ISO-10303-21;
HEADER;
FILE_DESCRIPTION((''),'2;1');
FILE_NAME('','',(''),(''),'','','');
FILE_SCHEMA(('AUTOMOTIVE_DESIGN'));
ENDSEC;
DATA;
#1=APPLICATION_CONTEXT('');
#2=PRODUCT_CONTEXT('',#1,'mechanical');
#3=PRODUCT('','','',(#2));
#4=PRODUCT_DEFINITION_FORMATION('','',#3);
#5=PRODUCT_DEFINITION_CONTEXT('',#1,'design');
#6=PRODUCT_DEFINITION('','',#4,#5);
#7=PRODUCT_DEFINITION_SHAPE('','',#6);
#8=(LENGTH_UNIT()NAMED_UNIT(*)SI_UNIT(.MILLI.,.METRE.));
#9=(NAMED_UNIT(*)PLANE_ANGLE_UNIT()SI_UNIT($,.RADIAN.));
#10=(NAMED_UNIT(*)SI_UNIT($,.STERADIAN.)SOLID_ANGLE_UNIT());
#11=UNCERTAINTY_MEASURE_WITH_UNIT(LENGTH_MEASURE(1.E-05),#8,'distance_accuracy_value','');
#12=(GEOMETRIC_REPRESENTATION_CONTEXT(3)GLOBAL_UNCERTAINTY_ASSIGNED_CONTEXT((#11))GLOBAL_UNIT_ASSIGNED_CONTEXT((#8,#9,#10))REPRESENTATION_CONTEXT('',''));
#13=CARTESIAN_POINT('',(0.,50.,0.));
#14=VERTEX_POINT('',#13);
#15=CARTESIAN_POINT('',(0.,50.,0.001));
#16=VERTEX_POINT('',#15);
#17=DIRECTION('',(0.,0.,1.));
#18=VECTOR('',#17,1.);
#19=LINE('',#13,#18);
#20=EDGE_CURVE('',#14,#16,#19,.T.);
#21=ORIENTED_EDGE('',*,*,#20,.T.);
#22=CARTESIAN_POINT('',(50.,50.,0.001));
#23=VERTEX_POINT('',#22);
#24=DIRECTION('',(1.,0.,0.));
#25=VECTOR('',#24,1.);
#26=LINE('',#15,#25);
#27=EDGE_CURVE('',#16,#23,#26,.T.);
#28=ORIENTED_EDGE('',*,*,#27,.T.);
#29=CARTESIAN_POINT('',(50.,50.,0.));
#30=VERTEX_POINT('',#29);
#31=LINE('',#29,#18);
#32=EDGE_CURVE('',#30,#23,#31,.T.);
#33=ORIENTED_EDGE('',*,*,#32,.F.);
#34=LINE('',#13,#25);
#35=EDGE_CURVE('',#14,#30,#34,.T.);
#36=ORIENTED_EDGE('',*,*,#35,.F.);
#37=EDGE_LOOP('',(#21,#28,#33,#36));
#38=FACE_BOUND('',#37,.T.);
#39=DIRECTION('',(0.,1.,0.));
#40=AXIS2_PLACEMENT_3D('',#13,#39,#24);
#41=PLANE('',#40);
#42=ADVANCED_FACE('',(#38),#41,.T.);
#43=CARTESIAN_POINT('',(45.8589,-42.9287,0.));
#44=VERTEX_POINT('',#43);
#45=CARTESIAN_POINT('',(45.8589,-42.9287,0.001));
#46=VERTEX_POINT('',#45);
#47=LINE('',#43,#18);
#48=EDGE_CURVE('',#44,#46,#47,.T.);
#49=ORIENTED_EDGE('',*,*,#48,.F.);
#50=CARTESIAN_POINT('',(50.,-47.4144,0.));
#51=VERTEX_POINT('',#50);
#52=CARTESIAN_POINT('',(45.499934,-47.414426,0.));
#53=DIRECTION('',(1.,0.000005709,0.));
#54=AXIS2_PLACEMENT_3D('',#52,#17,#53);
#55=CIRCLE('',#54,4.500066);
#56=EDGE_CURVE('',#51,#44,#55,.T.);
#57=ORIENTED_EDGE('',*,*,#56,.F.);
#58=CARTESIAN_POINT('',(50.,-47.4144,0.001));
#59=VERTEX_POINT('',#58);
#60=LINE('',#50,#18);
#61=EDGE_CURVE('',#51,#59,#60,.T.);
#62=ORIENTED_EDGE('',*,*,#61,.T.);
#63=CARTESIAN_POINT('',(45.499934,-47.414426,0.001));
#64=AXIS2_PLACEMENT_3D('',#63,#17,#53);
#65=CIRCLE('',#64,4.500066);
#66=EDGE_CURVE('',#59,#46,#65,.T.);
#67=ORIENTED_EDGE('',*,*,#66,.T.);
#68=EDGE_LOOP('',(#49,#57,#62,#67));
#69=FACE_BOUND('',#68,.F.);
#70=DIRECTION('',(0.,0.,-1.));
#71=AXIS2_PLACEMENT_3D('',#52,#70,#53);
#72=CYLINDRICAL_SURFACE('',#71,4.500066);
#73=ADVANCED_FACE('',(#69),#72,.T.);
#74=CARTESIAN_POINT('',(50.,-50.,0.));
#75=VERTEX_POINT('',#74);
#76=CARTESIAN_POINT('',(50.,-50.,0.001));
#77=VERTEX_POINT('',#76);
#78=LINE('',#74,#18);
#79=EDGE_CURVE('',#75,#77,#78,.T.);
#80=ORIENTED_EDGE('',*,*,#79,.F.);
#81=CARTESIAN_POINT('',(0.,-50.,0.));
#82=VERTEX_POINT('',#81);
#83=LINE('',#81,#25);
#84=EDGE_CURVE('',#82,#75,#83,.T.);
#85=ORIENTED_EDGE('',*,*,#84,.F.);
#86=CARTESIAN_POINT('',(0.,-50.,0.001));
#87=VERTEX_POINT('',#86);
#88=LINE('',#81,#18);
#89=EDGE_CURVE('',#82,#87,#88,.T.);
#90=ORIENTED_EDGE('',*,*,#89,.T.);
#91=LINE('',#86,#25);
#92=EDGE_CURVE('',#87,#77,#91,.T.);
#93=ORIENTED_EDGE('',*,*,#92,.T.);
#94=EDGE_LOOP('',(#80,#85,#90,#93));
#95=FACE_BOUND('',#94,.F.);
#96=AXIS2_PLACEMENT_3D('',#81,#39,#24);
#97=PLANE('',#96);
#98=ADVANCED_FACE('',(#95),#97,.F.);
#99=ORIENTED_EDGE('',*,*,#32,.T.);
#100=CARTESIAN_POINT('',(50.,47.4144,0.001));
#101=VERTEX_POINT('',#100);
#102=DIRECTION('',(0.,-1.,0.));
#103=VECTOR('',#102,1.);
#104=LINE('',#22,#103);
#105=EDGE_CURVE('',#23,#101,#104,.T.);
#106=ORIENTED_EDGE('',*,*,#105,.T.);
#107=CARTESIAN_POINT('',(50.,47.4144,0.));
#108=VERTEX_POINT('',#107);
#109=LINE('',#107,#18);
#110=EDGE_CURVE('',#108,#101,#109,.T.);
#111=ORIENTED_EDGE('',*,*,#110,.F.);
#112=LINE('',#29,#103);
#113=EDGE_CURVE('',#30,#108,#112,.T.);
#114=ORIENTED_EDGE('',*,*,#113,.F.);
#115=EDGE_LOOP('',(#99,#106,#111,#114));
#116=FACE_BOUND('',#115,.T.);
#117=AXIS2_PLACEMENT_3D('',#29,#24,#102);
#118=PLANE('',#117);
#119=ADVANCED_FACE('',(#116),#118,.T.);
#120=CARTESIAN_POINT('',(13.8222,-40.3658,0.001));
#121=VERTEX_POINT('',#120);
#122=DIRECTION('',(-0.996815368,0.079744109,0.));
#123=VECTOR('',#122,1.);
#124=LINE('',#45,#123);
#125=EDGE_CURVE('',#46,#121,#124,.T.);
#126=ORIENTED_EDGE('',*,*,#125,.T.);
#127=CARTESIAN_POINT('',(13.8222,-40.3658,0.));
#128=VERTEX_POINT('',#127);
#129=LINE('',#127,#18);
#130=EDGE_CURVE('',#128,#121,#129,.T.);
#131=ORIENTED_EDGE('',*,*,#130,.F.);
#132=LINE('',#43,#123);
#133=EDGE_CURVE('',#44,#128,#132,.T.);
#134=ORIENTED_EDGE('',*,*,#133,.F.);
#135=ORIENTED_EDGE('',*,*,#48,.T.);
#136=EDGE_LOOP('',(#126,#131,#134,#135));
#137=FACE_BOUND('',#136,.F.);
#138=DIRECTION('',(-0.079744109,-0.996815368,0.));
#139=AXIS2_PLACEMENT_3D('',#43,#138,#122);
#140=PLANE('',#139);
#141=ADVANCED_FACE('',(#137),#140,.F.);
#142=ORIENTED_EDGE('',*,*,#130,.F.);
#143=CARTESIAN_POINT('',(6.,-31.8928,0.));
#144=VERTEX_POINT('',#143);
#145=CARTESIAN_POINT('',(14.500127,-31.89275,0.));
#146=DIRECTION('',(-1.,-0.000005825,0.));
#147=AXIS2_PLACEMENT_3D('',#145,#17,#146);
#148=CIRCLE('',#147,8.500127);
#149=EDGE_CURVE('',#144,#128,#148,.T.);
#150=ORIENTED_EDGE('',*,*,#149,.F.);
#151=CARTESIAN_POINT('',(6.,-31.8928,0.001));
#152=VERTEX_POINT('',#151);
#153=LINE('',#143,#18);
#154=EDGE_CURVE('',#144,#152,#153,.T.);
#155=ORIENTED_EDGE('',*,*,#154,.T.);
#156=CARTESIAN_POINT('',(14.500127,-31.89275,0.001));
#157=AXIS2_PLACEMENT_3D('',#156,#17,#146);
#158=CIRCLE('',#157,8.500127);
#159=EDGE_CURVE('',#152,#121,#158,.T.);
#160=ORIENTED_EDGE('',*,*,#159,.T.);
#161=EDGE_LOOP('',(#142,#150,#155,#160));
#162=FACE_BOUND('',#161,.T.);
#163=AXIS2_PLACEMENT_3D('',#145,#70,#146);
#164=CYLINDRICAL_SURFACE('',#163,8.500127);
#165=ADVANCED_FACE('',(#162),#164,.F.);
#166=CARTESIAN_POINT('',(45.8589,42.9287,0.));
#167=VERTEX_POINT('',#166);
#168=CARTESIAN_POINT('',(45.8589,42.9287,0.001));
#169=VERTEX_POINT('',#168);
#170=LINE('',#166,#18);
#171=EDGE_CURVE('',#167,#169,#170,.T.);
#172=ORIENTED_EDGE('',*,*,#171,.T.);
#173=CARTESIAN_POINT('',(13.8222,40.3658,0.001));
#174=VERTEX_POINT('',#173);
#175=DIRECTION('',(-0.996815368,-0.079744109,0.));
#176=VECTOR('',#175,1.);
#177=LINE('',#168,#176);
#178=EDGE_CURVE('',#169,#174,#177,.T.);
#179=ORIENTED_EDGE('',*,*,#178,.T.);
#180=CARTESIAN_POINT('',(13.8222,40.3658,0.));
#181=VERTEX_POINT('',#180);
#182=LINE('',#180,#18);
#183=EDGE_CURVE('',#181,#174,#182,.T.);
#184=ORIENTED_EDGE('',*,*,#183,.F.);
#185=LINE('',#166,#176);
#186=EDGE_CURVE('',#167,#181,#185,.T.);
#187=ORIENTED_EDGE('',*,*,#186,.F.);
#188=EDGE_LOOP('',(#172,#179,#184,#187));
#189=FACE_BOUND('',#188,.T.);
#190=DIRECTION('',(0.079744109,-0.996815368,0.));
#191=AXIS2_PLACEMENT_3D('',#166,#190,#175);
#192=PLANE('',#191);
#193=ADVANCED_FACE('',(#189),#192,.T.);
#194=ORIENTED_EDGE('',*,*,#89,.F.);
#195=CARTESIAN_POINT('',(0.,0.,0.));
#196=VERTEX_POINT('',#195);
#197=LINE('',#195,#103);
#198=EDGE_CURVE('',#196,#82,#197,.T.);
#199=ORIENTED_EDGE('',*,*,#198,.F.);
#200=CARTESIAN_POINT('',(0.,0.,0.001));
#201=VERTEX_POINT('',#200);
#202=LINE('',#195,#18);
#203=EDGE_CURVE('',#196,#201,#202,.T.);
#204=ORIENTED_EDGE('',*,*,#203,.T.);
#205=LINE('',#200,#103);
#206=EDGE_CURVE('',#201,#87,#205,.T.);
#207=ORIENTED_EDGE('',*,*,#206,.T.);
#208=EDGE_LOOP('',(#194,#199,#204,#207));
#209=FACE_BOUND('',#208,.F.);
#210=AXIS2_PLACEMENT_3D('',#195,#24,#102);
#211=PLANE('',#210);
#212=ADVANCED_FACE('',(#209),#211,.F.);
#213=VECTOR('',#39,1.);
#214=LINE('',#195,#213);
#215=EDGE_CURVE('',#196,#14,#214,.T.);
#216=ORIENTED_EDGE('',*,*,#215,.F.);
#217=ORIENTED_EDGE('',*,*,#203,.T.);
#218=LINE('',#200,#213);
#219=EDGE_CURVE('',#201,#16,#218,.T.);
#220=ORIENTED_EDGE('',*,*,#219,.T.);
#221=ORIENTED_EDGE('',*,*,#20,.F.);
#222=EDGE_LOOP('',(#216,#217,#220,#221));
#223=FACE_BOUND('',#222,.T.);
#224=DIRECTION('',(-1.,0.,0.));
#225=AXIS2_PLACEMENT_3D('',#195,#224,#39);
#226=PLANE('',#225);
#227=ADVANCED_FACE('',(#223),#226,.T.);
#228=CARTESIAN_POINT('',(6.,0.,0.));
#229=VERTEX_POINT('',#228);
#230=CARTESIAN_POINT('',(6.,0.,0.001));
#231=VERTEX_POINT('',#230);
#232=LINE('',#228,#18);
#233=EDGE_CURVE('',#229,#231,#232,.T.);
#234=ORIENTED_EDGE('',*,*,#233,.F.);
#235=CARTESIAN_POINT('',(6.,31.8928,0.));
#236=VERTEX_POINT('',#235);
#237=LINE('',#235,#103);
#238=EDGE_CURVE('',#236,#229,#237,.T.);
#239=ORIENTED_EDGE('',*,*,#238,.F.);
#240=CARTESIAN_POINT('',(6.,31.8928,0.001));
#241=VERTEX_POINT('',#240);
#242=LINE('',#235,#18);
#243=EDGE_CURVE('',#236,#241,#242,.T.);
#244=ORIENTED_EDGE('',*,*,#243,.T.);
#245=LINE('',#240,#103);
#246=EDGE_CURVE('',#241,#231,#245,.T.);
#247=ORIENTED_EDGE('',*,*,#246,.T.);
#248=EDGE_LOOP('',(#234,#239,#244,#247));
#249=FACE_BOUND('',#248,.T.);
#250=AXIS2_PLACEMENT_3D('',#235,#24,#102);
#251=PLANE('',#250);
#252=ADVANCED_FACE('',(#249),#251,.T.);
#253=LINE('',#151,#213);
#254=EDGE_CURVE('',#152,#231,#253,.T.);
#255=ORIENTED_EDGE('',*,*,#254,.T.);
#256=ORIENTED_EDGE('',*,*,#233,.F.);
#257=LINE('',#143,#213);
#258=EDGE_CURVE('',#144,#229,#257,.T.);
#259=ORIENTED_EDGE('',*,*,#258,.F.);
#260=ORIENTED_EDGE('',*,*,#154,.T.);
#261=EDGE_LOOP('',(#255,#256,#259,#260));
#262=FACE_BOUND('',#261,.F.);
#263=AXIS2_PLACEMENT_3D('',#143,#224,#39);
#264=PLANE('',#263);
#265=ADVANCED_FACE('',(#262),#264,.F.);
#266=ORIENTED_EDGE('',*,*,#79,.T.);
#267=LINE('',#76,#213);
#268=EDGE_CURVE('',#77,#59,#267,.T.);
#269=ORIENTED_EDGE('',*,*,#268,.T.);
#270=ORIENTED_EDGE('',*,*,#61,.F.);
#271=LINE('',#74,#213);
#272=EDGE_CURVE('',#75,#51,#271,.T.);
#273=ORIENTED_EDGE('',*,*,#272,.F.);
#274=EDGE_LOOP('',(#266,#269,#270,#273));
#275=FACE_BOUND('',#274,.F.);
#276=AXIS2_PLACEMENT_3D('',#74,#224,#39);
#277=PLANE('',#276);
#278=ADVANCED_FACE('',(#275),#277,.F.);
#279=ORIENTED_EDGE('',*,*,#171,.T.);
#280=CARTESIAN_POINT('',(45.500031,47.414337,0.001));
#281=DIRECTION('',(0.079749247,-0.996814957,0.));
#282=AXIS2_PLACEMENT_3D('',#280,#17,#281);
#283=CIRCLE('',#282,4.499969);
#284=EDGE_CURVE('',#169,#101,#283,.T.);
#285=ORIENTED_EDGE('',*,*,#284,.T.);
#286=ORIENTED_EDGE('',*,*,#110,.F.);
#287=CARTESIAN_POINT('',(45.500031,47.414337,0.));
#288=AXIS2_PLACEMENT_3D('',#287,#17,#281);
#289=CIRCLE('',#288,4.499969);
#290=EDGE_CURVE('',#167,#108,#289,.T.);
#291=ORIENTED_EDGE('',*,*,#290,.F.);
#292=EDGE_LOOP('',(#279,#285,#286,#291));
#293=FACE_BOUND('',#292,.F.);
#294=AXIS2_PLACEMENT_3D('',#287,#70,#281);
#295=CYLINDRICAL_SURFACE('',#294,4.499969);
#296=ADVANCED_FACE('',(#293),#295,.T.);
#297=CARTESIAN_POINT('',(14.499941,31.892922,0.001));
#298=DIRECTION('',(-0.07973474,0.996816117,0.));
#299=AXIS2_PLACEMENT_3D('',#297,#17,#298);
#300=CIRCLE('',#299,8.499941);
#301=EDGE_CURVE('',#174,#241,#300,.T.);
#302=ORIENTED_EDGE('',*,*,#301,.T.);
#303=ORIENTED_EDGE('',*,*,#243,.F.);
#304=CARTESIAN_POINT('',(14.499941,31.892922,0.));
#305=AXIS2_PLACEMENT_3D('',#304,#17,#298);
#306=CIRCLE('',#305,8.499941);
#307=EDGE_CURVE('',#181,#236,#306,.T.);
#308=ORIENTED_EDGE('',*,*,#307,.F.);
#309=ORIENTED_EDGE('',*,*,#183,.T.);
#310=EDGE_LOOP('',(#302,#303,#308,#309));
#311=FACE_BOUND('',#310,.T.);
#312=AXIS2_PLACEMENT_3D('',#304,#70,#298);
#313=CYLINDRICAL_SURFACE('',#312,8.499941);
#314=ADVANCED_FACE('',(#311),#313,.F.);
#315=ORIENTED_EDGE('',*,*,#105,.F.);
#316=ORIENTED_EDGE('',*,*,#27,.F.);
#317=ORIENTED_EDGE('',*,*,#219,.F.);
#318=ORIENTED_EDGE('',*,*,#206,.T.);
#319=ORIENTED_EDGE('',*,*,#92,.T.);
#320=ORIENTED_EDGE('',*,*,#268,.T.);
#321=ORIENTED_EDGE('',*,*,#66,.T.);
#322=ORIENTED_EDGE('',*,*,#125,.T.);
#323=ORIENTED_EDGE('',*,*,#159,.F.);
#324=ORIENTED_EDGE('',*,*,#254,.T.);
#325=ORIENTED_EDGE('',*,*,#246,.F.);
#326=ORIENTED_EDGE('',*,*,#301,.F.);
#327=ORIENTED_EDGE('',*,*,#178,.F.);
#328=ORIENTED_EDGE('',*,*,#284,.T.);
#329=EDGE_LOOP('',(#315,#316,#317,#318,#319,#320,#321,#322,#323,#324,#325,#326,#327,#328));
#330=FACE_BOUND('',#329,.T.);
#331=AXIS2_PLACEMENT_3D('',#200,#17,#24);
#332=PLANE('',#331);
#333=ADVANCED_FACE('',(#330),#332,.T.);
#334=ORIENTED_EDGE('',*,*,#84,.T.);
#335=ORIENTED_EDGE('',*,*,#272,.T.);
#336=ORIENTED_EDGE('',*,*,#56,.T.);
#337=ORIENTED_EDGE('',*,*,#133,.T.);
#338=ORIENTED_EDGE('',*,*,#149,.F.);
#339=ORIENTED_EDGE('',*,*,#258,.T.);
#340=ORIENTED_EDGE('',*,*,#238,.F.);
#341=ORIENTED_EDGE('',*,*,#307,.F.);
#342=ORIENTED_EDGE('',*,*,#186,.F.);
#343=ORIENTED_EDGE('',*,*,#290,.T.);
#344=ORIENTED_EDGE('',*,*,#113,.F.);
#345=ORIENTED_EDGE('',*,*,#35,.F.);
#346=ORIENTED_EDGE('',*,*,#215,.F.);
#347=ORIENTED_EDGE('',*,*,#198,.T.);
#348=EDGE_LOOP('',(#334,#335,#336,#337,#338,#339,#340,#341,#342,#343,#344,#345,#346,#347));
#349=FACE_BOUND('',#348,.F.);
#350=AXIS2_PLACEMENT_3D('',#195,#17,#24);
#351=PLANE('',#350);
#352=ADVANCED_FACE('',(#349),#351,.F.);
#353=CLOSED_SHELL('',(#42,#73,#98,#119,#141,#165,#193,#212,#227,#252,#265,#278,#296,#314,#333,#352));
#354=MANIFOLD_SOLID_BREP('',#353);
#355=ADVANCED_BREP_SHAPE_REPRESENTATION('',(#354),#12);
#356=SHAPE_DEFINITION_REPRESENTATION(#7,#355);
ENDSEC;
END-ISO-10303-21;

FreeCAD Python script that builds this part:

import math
import FreeCAD as App
import Part
import Sketcher

doc = App.newDocument("Part")
body = doc.addObject("PartDesign::Body", "Body")

# Sketch on XY plane
sketch1 = doc.addObject("Sketcher::SketchObject", "Sketch")
body.addObject(sketch1)
sketch1.AttachmentSupport = (doc.XY_Plane, [""])
sketch1.MapMode = "FlatFace"
sketch1.addGeometry([
    Part.LineSegment(App.Vector(0, 50, 0), App.Vector(0, -50, 0)),  # 0
    Part.LineSegment(App.Vector(0, -50, 0), App.Vector(50, -50, 0)),  # 1
    Part.LineSegment(App.Vector(50, -50, 0), App.Vector(50, -47.4144, 0)),  # 2
    Part.ArcOfCircle(Part.Circle(App.Vector(45.5, -47.4144, 0), App.Vector(0, 0, 1), 4.5), math.radians(0), math.radians(85.42552)),  # 3
    Part.LineSegment(App.Vector(45.8589, -42.9287, 0), App.Vector(13.8222, -40.3658, 0)),  # 4
    Part.ArcOfCircle(Part.Circle(App.Vector(14.5, -31.8928, 0), App.Vector(0, 0, 1), 8.5), math.radians(180), math.radians(265.426348)),  # 5
    Part.LineSegment(App.Vector(6, -31.8928, 0), App.Vector(6, 31.8928, 0)),  # 6
    Part.ArcOfCircle(Part.Circle(App.Vector(14.5, 31.8928, 0), App.Vector(0, 0, 1), 8.500067), math.radians(94.573652), math.radians(180)),  # 7
    Part.LineSegment(App.Vector(13.8222, 40.3658, 0), App.Vector(45.8589, 42.9287, 0)),  # 8
    Part.ArcOfCircle(Part.Circle(App.Vector(45.5, 47.4144, 0), App.Vector(0, 0, 1), 4.500035), math.radians(-85.42552), math.radians(0)),  # 9
    Part.LineSegment(App.Vector(50, 47.4144, 0), App.Vector(50, 50, 0)),  # 10
    Part.LineSegment(App.Vector(50, 50, 0), App.Vector(0, 50, 0)),  # 11
], False)
sketch1.addConstraint([
    Sketcher.Constraint("Coincident", 0, 2, 1, 1),
    Sketcher.Constraint("Coincident", 1, 2, 2, 1),
    Sketcher.Constraint("Tangent", 2, 2, 3, 1),
    Sketcher.Constraint("Tangent", 3, 2, 4, 1),
    Sketcher.Constraint("Tangent", 4, 2, 5, 2),
    Sketcher.Constraint("Tangent", 5, 1, 6, 1),
    Sketcher.Constraint("Tangent", 6, 2, 7, 2),
    Sketcher.Constraint("Tangent", 7, 1, 8, 1),
    Sketcher.Constraint("Tangent", 8, 2, 9, 1),
    Sketcher.Constraint("Tangent", 9, 2, 10, 1),
    Sketcher.Constraint("Coincident", 10, 2, 11, 1),
    Sketcher.Constraint("Coincident", 11, 2, 0, 1),
    Sketcher.Constraint("Vertical", 0),
    Sketcher.Constraint("Horizontal", 1),
    Sketcher.Constraint("Vertical", 2),
    Sketcher.Constraint("Vertical", 6),
    Sketcher.Constraint("Vertical", 10),
    Sketcher.Constraint("Horizontal", 11),
    Sketcher.Constraint("Equal", 5, 7),
    Sketcher.Constraint("Equal", 3, 9),
    Sketcher.Constraint("Symmetric", 0, 2, 11, 2, -1, 1),
    Sketcher.Constraint("Symmetric", 3, 3, 9, 3, -1),
    Sketcher.Constraint("Vertical", 4, 2, 7, 1),
    Sketcher.Constraint("Radius", 3, 4.5),
    Sketcher.Constraint("Radius", 5, 8.5),
    Sketcher.Constraint("DistanceX", 1, 1, 1, 2, 50.0),
    Sketcher.Constraint("DistanceY", 0, 2, -1, 1, 50.0),
    Sketcher.Constraint("DistanceX", -1, 1, 5, 1, 6.0),
    Sketcher.Constraint("Distance", 4, 32.139),
    Sketcher.Constraint("DistanceY", 2, 1, 2, 2, 2.5856),
])
pad1 = doc.addObject("PartDesign::Pad", "Pad")
body.addObject(pad1)
pad1.Profile = sketch1
pad1.Length = 0.001

doc.recompute()
